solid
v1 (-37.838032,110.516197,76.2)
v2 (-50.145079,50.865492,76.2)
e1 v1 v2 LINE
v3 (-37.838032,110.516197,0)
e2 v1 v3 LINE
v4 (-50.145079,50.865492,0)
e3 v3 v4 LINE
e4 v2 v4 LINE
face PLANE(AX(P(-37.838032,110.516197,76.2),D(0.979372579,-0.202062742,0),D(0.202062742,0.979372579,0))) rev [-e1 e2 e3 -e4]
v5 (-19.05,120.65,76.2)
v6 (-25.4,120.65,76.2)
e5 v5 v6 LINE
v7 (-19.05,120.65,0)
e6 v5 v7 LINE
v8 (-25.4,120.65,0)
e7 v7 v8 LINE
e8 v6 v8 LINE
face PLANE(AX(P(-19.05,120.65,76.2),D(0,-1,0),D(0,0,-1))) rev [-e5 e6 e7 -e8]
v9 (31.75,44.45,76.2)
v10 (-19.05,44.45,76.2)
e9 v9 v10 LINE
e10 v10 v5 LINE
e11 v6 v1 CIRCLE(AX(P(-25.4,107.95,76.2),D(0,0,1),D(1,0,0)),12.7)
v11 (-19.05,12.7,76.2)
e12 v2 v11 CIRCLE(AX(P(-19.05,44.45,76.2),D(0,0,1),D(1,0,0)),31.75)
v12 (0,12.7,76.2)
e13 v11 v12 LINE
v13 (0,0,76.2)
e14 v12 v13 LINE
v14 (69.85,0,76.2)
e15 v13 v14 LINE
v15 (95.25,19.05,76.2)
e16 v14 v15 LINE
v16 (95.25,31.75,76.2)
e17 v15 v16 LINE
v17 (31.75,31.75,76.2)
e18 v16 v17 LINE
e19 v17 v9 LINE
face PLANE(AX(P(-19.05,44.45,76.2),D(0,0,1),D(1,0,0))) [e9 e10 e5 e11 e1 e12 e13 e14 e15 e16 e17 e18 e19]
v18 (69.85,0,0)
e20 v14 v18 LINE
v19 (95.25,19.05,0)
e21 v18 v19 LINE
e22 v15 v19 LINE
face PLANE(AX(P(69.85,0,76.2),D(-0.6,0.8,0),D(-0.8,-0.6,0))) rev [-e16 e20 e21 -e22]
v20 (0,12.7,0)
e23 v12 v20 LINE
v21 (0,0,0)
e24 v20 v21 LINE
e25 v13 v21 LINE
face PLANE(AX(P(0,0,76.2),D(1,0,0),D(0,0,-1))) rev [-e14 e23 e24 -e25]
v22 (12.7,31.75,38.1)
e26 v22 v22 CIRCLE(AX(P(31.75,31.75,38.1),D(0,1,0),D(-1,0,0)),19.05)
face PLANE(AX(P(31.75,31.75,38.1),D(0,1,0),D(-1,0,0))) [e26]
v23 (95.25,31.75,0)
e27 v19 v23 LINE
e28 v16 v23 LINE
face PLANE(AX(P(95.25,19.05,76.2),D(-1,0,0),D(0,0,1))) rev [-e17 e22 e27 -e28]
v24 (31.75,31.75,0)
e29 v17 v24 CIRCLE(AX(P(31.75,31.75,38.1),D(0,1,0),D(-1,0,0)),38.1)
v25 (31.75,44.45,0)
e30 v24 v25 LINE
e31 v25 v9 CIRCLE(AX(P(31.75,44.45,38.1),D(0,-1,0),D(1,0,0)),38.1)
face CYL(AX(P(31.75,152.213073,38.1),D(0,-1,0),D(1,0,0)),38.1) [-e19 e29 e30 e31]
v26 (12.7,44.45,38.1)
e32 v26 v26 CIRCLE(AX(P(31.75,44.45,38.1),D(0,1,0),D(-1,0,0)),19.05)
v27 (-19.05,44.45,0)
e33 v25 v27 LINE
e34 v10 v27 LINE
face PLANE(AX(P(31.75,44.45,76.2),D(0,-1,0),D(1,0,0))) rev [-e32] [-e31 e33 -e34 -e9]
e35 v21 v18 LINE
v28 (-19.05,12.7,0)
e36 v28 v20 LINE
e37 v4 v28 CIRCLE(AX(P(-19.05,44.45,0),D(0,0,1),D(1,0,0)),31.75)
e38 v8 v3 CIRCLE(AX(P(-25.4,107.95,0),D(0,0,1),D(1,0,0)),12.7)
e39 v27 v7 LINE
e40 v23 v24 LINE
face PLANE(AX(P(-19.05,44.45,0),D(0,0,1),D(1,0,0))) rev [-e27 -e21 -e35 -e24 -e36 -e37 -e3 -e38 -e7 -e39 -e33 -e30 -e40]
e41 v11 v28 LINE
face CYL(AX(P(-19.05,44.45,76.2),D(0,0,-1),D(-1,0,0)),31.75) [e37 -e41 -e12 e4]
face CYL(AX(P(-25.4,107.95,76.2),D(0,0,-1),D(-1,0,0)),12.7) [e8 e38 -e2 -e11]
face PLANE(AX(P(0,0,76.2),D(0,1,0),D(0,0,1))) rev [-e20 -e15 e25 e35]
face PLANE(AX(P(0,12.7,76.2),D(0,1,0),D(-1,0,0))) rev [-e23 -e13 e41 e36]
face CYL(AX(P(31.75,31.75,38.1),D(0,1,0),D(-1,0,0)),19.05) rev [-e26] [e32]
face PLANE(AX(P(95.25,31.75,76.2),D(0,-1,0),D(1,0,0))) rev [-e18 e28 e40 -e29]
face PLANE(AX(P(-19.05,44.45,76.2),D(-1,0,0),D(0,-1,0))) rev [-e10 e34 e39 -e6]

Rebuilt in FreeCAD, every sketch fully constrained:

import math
import FreeCAD as App
import Part
import Sketcher
from FreeCAD import Vector
Q = App.Units.Quantity

doc = App.newDocument("Part")
params = doc.addObject("Spreadsheet::Sheet", "Params")
for row, (alias, value) in enumerate([
    ("sketch1_radius", "0.5 in"),
    ("sketch1_width", "2 in"),
    ("sketch1_height", "3 in"),
    ("sketch1_radius2", "1.25 in"),
    ("sketch1_width2", "2.5 in"),
    ("pad1_length", "3 in"),
    ("sketch2_diameter", "3 in"),
    ("pad2_length", "0.5 in"),
    ("sketch3_diameter", "1.5 in"),
    ("pocket1_length", "0.5 in"),
], start=1):
    params.set(f"A{row}", alias)
    params.set(f"B{row}", "=" + value)
    params.setAlias(f"B{row}", alias)

body = doc.addObject("PartDesign::Body", "Body")

# Sketch on XY plane
sketch1 = body.newObject("Sketcher::SketchObject", "Sketch")
sketch1.AttachmentSupport = (doc.getObject("XY_Plane"), [""])
sketch1.MapMode = "FlatFace"
sketch1.addGeometry([
    Part.LineSegment(Vector(0, 0, 0), Vector(70, 0, 0)),  # 0
    Part.LineSegment(Vector(70, 0, 0), Vector(95, 19, 0)),  # 1
    Part.LineSegment(Vector(95, 19, 0), Vector(95, 32, 0)),  # 2
    Part.LineSegment(Vector(95, 32, 0), Vector(32, 32, 0)),  # 3
    Part.LineSegment(Vector(32, 32, 0), Vector(32, 44, 0)),  # 4
    Part.LineSegment(Vector(32, 44, 0), Vector(-19, 44, 0)),  # 5
    Part.LineSegment(Vector(-19, 44, 0), Vector(-19, 121, 0)),  # 6
    Part.LineSegment(Vector(-19, 121, 0), Vector(-25, 121, 0)),  # 7
    Part.ArcOfCircle(Part.Circle(Vector(-25, 108, 0), Vector(0, 0, 1), 13), math.radians(90), math.radians(168)),  # 8
    Part.LineSegment(Vector(-38, 111, 0), Vector(-50, 51, 0)),  # 9
    Part.ArcOfCircle(Part.Circle(Vector(-19, 44, 0), Vector(0, 0, 1), 32), math.radians(168), math.radians(270)),  # 10
    Part.LineSegment(Vector(-19, 13, 0), Vector(0, 13, 0)),  # 11
    Part.LineSegment(Vector(0, 13, 0), Vector(0, 0, 0)),  # 12
], False)
sketch1.addConstraint([
    Sketcher.Constraint("Coincident", 0, 2, 1, 1),
    Sketcher.Constraint("Coincident", 1, 2, 2, 1),
    Sketcher.Constraint("Coincident", 2, 2, 3, 1),
    Sketcher.Constraint("Coincident", 3, 2, 4, 1),
    Sketcher.Constraint("Coincident", 4, 2, 5, 1),
    Sketcher.Constraint("Coincident", 5, 2, 6, 1),
    Sketcher.Constraint("Coincident", 6, 2, 7, 1),
    Sketcher.Constraint("Tangent", 7, 2, 8, 1),
    Sketcher.Constraint("Tangent", 8, 2, 9, 1),
    Sketcher.Constraint("Tangent", 9, 2, 10, 1),
    Sketcher.Constraint("Tangent", 10, 2, 11, 1),
    Sketcher.Constraint("Coincident", 11, 2, 12, 1),
    Sketcher.Constraint("Coincident", 12, 2, 0, 1),
    Sketcher.Constraint("Horizontal", 0),
    Sketcher.Constraint("Vertical", 2),
    Sketcher.Constraint("Horizontal", 3),
    Sketcher.Constraint("Vertical", 4),
    Sketcher.Constraint("Horizontal", 5),
    Sketcher.Constraint("Vertical", 6),
    Sketcher.Constraint("Horizontal", 7),
    Sketcher.Constraint("Horizontal", 11),
    Sketcher.Constraint("Vertical", 12),
    Sketcher.Constraint("Coincident", 12, 2, -1, 1),
    Sketcher.Constraint("Coincident", 5, 2, 10, 3),
    Sketcher.Constraint("Equal", 2, 4),
    Sketcher.Constraint("Equal", 4, 12),
    Sketcher.Constraint("Radius", 8, Q("0.5 in")),
    Sketcher.Constraint("DistanceX", 5, 2, 5, 1, Q("2 in")),
    Sketcher.Constraint("DistanceY", 6, 1, 6, 2, Q("3 in")),
    Sketcher.Constraint("Radius", 10, Q("1.25 in")),
    Sketcher.Constraint("DistanceX", 3, 2, 3, 1, Q("2.5 in")),
    Sketcher.Constraint("DistanceY", 2, 1, 2, 2, Q("0.5 in")),
    Sketcher.Constraint("DistanceX", 8, 3, -1, 1, Q("1 in")),
    Sketcher.Constraint("DistanceX", 0, 2, 1, 2, Q("1 in")),
    Sketcher.Constraint("DistanceX", 0, 1, 0, 2, Q("2.75 in")),
])
sketch1.setExpression("Constraints[26]", "Params.sketch1_radius")
sketch1.setExpression("Constraints[27]", "Params.sketch1_width")
sketch1.setExpression("Constraints[28]", "Params.sketch1_height")
sketch1.setExpression("Constraints[29]", "Params.sketch1_radius2")
sketch1.setExpression("Constraints[30]", "Params.sketch1_width2")
pad1 = body.newObject("PartDesign::Pad", "Pad")
pad1.Profile = sketch1
pad1.setExpression("Length", "Params.pad1_length")

# Sketch on XZ plane
sketch2 = body.newObject("Sketcher::SketchObject", "Sketch001")
sketch2.AttachmentSupport = (doc.getObject("XZ_Plane"), [""])
sketch2.MapMode = "FlatFace"
sketch2.AttachmentOffset = App.Placement(Vector(0, 0, -1.25 * 25.4), App.Rotation())
sketch2.addGeometry(Part.Circle(Vector(32, 38, 0), Vector(0, 0, 1), 38), False)
sketch2.addConstraint([
    Sketcher.Constraint("Diameter", 0, Q("3 in")),
    Sketcher.Constraint("DistanceY", -1, 1, 0, 3, Q("1.5 in")),
    Sketcher.Constraint("DistanceX", -1, 1, 0, 3, Q("1.25 in")),
])
sketch2.setExpression("Constraints[0]", "Params.sketch2_diameter")
pad2 = body.newObject("PartDesign::Pad", "Pad001")
pad2.Profile = sketch2
pad2.setExpression("Length", "Params.pad2_length")
pad2.Reversed = True

# Sketch on XZ plane
sketch3 = body.newObject("Sketcher::SketchObject", "Sketch002")
sketch3.AttachmentSupport = (doc.getObject("XZ_Plane"), [""])
sketch3.MapMode = "FlatFace"
sketch3.AttachmentOffset = App.Placement(Vector(0, 0, -1.75 * 25.4), App.Rotation())
sketch3.addGeometry(Part.Circle(Vector(32, 38, 0), Vector(0, 0, 1), 19), False)
sketch3.addConstraint([
    Sketcher.Constraint("Diameter", 0, Q("1.5 in")),
    Sketcher.Constraint("DistanceY", -1, 1, 0, 3, Q("1.5 in")),
    Sketcher.Constraint("DistanceX", -1, 1, 0, 3, Q("1.25 in")),
])
sketch3.setExpression("Constraints[0]", "Params.sketch3_diameter")
pocket1 = body.newObject("PartDesign::Pocket", "Pocket")
pocket1.Profile = sketch3
pocket1.setExpression("Length", "Params.pocket1_length")
pocket1.Reversed = True

doc.recompute()
